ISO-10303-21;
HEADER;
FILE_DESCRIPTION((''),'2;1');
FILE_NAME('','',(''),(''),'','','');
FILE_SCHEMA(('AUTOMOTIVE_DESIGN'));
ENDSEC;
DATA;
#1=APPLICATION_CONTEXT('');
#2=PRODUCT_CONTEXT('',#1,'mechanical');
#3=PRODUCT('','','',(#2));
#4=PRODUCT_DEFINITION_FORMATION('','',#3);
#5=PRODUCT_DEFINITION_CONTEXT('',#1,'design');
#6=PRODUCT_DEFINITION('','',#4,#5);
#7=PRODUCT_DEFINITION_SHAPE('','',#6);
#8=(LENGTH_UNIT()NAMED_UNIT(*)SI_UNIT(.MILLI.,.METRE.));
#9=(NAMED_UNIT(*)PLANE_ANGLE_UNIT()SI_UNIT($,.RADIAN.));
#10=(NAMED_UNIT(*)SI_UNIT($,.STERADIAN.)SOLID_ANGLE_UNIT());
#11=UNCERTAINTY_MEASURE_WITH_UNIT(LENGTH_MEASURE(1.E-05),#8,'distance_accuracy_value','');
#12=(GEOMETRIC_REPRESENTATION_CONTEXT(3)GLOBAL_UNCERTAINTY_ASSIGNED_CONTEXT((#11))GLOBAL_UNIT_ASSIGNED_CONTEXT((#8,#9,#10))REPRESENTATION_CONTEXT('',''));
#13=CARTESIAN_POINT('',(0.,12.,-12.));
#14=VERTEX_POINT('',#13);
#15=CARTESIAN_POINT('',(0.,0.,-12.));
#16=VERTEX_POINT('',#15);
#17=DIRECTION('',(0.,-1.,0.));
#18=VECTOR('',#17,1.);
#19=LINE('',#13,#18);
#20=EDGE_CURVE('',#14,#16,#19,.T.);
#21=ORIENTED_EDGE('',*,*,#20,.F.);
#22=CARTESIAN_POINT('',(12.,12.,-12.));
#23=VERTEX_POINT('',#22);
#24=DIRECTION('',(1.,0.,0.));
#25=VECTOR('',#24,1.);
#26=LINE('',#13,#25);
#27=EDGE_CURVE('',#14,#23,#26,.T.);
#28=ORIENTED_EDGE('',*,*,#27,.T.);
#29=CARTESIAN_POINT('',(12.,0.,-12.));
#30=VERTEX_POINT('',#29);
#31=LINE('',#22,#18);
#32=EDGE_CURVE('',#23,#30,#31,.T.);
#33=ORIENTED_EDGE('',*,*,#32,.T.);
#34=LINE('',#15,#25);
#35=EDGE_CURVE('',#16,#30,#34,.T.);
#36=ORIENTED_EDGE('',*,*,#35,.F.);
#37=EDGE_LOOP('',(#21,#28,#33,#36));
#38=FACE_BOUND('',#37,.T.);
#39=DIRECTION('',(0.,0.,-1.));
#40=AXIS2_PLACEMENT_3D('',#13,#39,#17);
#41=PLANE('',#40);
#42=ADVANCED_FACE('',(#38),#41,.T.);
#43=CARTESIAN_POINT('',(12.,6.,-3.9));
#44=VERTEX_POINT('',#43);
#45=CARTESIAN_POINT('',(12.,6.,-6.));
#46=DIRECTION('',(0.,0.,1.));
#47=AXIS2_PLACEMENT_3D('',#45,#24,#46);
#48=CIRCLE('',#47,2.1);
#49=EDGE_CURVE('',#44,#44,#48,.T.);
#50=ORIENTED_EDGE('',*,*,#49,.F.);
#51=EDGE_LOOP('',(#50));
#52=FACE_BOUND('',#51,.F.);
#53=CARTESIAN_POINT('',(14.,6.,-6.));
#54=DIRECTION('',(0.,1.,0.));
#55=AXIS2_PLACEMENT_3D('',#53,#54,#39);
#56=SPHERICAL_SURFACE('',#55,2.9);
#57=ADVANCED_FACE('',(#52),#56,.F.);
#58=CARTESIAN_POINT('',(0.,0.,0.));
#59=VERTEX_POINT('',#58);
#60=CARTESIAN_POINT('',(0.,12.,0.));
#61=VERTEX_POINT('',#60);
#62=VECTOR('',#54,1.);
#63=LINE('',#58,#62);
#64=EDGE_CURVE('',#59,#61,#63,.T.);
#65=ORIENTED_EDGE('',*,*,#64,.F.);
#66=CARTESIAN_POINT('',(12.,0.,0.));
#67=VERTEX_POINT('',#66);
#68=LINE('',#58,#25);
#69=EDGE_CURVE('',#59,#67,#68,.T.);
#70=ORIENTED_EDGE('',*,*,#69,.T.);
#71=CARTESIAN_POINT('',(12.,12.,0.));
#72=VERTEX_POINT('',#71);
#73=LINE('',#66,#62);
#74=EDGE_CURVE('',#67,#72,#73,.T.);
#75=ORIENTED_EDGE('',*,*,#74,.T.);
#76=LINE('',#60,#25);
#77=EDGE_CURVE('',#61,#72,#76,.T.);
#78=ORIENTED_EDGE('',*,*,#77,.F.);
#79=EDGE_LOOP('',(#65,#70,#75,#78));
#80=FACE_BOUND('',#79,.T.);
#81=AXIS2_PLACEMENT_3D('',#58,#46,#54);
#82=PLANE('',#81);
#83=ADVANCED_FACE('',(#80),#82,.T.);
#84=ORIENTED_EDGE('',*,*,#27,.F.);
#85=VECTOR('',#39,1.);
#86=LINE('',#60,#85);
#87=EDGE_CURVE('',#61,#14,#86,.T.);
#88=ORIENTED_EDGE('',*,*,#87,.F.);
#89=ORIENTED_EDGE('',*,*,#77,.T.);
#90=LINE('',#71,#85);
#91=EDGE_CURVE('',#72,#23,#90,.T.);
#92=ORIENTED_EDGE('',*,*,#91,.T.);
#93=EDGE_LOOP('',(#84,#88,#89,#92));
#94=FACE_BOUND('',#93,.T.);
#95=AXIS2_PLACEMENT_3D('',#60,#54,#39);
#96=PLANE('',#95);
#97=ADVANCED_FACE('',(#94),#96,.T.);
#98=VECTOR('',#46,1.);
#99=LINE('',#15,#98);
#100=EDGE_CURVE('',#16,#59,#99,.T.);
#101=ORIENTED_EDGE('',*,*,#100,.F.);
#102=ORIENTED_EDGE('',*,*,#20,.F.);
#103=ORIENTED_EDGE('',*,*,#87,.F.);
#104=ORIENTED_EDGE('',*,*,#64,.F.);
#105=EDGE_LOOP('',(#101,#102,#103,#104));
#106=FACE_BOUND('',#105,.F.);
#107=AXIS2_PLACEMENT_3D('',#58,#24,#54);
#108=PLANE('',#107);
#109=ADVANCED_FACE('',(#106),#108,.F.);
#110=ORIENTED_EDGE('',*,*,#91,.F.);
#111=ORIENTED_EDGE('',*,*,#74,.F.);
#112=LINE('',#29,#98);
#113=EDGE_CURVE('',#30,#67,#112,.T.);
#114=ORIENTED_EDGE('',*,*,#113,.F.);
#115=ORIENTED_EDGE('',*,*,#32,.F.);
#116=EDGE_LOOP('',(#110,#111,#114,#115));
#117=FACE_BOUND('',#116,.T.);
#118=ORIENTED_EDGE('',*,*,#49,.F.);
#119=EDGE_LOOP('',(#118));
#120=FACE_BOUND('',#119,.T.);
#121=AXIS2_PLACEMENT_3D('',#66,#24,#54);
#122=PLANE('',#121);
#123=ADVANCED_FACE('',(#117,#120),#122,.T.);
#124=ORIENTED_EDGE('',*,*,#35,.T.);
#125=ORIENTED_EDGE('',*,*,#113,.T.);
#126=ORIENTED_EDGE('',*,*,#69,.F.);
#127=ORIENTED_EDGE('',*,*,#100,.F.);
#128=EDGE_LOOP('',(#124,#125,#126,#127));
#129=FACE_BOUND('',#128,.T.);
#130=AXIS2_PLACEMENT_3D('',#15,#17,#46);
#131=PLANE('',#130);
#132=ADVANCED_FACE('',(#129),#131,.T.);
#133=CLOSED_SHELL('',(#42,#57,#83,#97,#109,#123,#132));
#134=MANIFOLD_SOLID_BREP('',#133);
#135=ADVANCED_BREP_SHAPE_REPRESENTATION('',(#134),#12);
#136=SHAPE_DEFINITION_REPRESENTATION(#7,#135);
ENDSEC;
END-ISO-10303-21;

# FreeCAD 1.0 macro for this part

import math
import FreeCAD as App
import Part
import Sketcher
Q = App.Units.Quantity


def add_polygon(sketch, points):
    """Adds a closed chain of lines whose ends are joined by coincident constraints."""
    first, n = sketch.GeometryCount, len(points)
    for a, b in zip(points, points[1:] + points[:1]):
        sketch.addGeometry(Part.LineSegment(App.Vector(*a, 0), App.Vector(*b, 0)), False)
    for i in range(n):
        sketch.addConstraint(Sketcher.Constraint("Coincident", first + i, 2, first + (i + 1) % n, 1))

doc = App.newDocument("Part")
body = doc.addObject("PartDesign::Body", "Body")

# Sketch on YZ plane
sketch1 = body.newObject("Sketcher::SketchObject", "Sketch")
sketch1.AttachmentSupport = (doc.getObject("YZ_Plane"), [""])
sketch1.MapMode = "FlatFace"
add_polygon(sketch1, [(12, 0), (0, 0), (0, -12), (12, -12)])  # lines 0-3
sketch1.addConstraint([
    Sketcher.Constraint("Horizontal", 0),
    Sketcher.Constraint("Vertical", 1),
    Sketcher.Constraint("Horizontal", 2),
    Sketcher.Constraint("Vertical", 3),
    Sketcher.Constraint("Coincident", 0, 2, -1, 1),
    Sketcher.Constraint("Equal", 2, 1),
    Sketcher.Constraint("DistanceX", 0, 2, 0, 1, Q("12 mm")),
])
pad1 = body.newObject("PartDesign::Pad", "Pad")
pad1.Profile = sketch1
pad1.Length = 12

# Sketch on YZ plane
sketch2 = body.newObject("Sketcher::SketchObject", "Sketch001")
sketch2.AttachmentSupport = (doc.getObject("YZ_Plane"), [""])
sketch2.MapMode = "FlatFace"
sketch2.AttachmentOffset = App.Placement(App.Vector(0, 0, 14), App.Rotation())
sketch2.addGeometry([
    Part.LineSegment(App.Vector(8.9, -6, 0), App.Vector(3.1, -6, 0)),
    Part.ArcOfCircle(Part.Circle(App.Vector(6, -6, 0), App.Vector(0, 0, 1), 2.9), math.radians(180), math.radians(360)),
], False)
sketch2.addGeometry(Part.LineSegment(App.Vector(3.1, -6, 0), App.Vector(8.9, -6, 0)), True)  # axis
sketch2.addConstraint([
    Sketcher.Constraint("Coincident", 0, 1, 1, 2),
    Sketcher.Constraint("Coincident", 1, 1, 0, 2),
    Sketcher.Constraint("Horizontal", 0),
    Sketcher.Constraint("Horizontal", 2),
    Sketcher.Constraint("Coincident", 2, 1, 1, 1),
    Sketcher.Constraint("Horizontal", 1, 3, 0, 1),
    Sketcher.Constraint("Equal", 0, 2),
    Sketcher.Constraint("Radius", 1, Q("2.9 mm")),
    Sketcher.Constraint("DistanceX", -1, 1, 1, 3, Q("6 mm")),
    Sketcher.Constraint("DistanceY", 1, 3, -1, 1, Q("6 mm")),
])
groove = body.newObject("PartDesign::Groove", "Groove")
groove.Profile = sketch2
groove.ReferenceAxis = (sketch2, ["Axis0"])
groove.Angle = 360

doc.recompute()
